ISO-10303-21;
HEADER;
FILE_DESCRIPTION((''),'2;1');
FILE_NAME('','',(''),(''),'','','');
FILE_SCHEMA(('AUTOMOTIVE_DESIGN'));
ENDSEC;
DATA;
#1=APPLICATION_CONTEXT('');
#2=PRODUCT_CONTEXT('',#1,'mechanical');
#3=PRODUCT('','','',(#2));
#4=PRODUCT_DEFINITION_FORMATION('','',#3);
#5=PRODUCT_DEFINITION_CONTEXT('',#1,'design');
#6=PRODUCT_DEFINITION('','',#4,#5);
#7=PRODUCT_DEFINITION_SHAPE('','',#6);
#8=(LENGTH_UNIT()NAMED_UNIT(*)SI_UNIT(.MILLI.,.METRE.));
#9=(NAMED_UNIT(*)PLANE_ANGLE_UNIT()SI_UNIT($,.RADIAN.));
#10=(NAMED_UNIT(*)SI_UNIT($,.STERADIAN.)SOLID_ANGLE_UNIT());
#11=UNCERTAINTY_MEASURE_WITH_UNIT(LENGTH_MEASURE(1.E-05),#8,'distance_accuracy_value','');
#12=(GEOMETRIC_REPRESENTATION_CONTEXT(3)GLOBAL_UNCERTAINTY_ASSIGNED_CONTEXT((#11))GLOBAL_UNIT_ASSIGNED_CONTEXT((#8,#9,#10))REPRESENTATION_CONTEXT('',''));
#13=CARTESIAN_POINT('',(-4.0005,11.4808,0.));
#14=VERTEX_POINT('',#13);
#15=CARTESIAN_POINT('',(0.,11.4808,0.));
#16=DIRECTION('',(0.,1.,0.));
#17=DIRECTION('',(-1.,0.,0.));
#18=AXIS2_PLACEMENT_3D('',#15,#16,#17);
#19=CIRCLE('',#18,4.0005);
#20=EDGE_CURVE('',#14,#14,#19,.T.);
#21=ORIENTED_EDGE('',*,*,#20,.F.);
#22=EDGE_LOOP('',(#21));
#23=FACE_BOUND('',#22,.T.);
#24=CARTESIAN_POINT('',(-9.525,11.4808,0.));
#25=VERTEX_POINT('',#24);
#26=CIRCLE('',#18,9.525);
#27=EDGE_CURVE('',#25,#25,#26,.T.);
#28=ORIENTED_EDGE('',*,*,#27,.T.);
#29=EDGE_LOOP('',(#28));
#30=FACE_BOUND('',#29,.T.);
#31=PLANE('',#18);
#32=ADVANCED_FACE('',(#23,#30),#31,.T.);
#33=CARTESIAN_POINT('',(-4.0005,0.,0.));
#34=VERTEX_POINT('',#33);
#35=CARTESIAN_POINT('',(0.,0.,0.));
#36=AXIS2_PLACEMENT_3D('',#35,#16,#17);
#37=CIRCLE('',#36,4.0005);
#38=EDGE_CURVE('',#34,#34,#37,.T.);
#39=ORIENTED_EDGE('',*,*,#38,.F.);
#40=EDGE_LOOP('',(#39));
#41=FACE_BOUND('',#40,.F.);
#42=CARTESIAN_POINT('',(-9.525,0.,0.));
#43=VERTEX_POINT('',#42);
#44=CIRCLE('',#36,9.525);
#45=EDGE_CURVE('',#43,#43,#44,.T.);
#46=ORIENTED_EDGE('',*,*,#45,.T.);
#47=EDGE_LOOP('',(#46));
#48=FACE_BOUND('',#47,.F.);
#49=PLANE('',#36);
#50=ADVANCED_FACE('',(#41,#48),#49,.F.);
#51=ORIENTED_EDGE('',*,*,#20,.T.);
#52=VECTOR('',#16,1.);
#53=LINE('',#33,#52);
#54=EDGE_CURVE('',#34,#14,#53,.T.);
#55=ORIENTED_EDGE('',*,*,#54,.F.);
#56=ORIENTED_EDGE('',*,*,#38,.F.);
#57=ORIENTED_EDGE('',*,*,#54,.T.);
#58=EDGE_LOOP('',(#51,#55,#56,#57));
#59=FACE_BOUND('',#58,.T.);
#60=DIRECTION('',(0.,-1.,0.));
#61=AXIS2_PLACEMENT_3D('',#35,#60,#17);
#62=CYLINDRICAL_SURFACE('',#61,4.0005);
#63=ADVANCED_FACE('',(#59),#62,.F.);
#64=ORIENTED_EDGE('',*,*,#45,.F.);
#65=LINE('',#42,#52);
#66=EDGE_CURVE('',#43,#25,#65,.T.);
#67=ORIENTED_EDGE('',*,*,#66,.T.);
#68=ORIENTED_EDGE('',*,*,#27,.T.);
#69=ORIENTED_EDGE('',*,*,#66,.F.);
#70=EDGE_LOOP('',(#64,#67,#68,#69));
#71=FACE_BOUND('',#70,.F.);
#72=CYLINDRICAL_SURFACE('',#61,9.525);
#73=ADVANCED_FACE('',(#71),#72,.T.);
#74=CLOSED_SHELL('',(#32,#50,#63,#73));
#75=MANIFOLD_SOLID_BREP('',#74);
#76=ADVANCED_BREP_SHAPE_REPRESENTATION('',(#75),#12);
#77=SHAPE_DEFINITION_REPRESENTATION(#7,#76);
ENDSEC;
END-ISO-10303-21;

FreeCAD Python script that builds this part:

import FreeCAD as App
import Part
import Sketcher

V = App.Vector
Q = App.Units.Quantity

doc = App.newDocument("Part")
body = doc.addObject("PartDesign::Body", "Body")

# Sketch on XZ plane
sketch1 = doc.addObject("Sketcher::SketchObject", "Sketch")
body.addObject(sketch1)
sketch1.AttachmentSupport = (doc.XZ_Plane, [""])
sketch1.MapMode = "FlatFace"
sketch1.addGeometry([
    Part.Circle(V(0, 0, 0), V(0, 0, 1), 9.5),
    Part.Circle(V(0, 0, 0), V(0, 0, 1), 4),
], False)
sketch1.addConstraint([
    Sketcher.Constraint("Coincident", 0, 3, -1, 1),
    Sketcher.Constraint("Coincident", 1, 3, -1, 1),
    Sketcher.Constraint("Diameter", 0, Q("0.75 in")),
    Sketcher.Constraint("Diameter", 1, Q("0.315 in")),
])
pad1 = doc.addObject("PartDesign::Pad", "Pad")
body.addObject(pad1)
pad1.Profile = sketch1
pad1.Length = Q("0.452 in")
pad1.Reversed = True

doc.recompute()
